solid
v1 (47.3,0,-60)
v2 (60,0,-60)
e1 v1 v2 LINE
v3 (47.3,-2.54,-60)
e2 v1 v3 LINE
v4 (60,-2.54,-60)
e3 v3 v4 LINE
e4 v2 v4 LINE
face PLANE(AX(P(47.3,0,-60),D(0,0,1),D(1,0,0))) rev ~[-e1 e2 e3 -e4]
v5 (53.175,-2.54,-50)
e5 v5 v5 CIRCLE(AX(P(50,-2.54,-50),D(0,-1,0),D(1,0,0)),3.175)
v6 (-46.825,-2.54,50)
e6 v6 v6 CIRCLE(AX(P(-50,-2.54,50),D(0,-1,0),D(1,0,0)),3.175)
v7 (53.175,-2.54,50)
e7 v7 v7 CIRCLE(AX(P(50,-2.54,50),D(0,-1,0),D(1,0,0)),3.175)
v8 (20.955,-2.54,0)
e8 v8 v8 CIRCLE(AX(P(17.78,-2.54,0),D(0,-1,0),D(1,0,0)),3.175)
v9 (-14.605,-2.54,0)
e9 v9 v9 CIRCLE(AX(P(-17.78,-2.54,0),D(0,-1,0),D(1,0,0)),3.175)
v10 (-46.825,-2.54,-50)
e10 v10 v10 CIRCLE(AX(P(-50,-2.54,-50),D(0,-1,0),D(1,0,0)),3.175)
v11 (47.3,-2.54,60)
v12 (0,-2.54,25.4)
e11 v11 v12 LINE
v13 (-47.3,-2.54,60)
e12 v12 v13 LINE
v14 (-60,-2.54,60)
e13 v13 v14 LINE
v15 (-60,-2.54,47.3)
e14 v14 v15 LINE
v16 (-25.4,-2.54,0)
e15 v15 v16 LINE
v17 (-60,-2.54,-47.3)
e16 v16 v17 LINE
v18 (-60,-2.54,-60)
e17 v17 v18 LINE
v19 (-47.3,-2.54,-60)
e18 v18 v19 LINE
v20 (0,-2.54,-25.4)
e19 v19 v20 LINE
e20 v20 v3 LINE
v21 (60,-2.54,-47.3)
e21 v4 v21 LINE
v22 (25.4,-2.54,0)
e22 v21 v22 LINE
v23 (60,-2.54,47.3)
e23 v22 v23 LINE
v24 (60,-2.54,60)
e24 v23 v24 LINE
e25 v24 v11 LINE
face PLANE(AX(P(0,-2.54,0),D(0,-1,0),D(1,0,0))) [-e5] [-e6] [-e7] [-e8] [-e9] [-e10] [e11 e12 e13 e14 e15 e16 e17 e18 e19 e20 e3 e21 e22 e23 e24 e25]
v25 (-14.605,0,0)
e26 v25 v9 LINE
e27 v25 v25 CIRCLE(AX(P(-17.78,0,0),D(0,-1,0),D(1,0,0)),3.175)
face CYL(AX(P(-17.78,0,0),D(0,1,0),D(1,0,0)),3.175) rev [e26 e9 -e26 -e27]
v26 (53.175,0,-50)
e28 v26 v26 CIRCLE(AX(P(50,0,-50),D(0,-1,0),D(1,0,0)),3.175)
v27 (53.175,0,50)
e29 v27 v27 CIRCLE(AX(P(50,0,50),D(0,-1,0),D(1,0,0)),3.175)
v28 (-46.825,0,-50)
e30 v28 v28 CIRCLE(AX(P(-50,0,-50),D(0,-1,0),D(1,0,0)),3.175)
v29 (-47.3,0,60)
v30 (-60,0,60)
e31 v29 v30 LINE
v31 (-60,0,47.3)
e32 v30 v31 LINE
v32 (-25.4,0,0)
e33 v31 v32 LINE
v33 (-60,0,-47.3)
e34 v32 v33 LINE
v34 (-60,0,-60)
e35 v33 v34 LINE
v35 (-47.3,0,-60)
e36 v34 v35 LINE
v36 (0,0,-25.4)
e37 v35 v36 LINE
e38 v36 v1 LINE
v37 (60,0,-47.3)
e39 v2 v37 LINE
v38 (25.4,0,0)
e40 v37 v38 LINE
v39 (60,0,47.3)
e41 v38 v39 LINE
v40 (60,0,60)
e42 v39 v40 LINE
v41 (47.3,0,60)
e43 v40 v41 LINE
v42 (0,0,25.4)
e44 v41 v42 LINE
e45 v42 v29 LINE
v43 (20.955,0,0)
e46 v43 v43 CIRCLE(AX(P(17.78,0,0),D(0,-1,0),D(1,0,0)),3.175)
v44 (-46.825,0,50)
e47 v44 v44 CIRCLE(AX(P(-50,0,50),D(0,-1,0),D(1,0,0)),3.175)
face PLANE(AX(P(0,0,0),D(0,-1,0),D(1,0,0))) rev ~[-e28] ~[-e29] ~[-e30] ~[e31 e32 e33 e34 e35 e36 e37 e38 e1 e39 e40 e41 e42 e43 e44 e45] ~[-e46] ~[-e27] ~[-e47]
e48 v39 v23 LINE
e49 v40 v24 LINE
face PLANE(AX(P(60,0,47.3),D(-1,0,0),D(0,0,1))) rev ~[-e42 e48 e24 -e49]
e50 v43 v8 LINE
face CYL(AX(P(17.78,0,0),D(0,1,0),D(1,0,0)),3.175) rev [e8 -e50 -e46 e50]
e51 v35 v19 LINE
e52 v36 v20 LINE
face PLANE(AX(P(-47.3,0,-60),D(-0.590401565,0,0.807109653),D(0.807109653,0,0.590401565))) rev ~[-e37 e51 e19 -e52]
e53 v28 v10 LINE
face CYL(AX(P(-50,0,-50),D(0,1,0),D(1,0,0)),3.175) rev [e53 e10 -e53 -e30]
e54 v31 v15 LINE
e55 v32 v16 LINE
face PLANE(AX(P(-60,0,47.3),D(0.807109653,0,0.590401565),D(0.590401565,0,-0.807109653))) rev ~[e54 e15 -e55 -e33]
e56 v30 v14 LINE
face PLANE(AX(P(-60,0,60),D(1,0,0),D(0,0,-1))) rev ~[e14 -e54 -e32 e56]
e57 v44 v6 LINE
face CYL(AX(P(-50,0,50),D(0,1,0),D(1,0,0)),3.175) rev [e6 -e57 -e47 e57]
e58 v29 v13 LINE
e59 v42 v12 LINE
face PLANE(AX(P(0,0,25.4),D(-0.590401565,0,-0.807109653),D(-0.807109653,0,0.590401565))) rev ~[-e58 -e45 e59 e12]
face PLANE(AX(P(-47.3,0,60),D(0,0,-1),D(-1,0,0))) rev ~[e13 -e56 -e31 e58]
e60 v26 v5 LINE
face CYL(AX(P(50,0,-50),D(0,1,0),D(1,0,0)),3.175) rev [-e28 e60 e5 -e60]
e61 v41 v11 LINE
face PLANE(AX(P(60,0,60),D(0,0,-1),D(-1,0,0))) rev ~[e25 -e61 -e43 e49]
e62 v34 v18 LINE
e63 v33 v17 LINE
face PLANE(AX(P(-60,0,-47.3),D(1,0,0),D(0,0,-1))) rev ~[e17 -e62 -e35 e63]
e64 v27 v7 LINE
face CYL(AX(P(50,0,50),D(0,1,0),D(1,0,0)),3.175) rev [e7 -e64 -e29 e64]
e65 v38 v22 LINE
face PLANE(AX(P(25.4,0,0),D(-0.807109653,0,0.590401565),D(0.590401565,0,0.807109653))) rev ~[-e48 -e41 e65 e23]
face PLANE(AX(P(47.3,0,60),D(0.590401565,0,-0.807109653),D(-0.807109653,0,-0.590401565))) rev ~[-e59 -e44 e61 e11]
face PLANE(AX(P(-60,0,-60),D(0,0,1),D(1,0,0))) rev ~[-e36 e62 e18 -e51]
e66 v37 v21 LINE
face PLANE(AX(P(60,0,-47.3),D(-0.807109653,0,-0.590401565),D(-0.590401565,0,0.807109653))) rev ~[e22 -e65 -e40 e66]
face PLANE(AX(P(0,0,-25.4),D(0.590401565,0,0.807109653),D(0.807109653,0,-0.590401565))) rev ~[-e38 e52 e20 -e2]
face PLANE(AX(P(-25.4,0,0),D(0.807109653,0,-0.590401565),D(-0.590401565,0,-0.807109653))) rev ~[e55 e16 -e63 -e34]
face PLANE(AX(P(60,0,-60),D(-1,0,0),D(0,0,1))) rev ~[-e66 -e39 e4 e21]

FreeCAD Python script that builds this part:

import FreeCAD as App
import Part
import Sketcher
Q = App.Units.Quantity

doc = App.newDocument("Part")
body = doc.addObject("PartDesign::Body", "Body")

# Sketch on XZ plane
sketch1 = body.newObject("Sketcher::SketchObject", "Sketch")
sketch1.AttachmentSupport = (doc.getObject("XZ_Plane"), [""])
sketch1.MapMode = "FlatFace"
sketch1.addGeometry([
    Part.LineSegment(App.Vector(60, 47.3, 0), App.Vector(60, 60, 0)),  # 0
    Part.LineSegment(App.Vector(60, 60, 0), App.Vector(47.3, 60, 0)),  # 1
    Part.LineSegment(App.Vector(47.3, 60, 0), App.Vector(0, 25.4, 0)),  # 2
    Part.LineSegment(App.Vector(0, 25.4, 0), App.Vector(-47.3, 60, 0)),  # 3
    Part.LineSegment(App.Vector(-47.3, 60, 0), App.Vector(-60, 60, 0)),  # 4
    Part.LineSegment(App.Vector(-60, 60, 0), App.Vector(-60, 47.3, 0)),  # 5
    Part.LineSegment(App.Vector(-60, 47.3, 0), App.Vector(-25.4, 0, 0)),  # 6
    Part.LineSegment(App.Vector(-25.4, 0, 0), App.Vector(-60, -47.3, 0)),  # 7
    Part.LineSegment(App.Vector(-60, -47.3, 0), App.Vector(-60, -60, 0)),  # 8
    Part.LineSegment(App.Vector(-60, -60, 0), App.Vector(-47.3, -60, 0)),  # 9
    Part.LineSegment(App.Vector(-47.3, -60, 0), App.Vector(0, -25.4, 0)),  # 10
    Part.LineSegment(App.Vector(0, -25.4, 0), App.Vector(47.3, -60, 0)),  # 11
    Part.LineSegment(App.Vector(47.3, -60, 0), App.Vector(60, -60, 0)),  # 12
    Part.LineSegment(App.Vector(60, -60, 0), App.Vector(60, -47.3, 0)),  # 13
    Part.LineSegment(App.Vector(60, -47.3, 0), App.Vector(25.4, 0, 0)),  # 14
    Part.LineSegment(App.Vector(25.4, 0, 0), App.Vector(60, 47.3, 0)),  # 15
    Part.Circle(App.Vector(-50, -50, 0), App.Vector(0, 0, 1), 3.2),  # 16
    Part.Circle(App.Vector(50, -50, 0), App.Vector(0, 0, 1), 3.2),  # 17
    Part.Circle(App.Vector(-17.8, 0, 0), App.Vector(0, 0, 1), 3.2),  # 18
    Part.Circle(App.Vector(-50, 50, 0), App.Vector(0, 0, 1), 3.2),  # 19
    Part.Circle(App.Vector(17.8, 0, 0), App.Vector(0, 0, 1), 3.2),  # 20
    Part.Circle(App.Vector(50, 50, 0), App.Vector(0, 0, 1), 3.2),  # 21
], False)
sketch1.addConstraint([
    Sketcher.Constraint("Coincident", 0, 2, 1, 1),
    Sketcher.Constraint("Coincident", 1, 2, 2, 1),
    Sketcher.Constraint("Coincident", 2, 2, 3, 1),
    Sketcher.Constraint("Coincident", 3, 2, 4, 1),
    Sketcher.Constraint("Coincident", 4, 2, 5, 1),
    Sketcher.Constraint("Coincident", 5, 2, 6, 1),
    Sketcher.Constraint("Coincident", 6, 2, 7, 1),
    Sketcher.Constraint("Coincident", 7, 2, 8, 1),
    Sketcher.Constraint("Coincident", 8, 2, 9, 1),
    Sketcher.Constraint("Coincident", 9, 2, 10, 1),
    Sketcher.Constraint("Coincident", 10, 2, 11, 1),
    Sketcher.Constraint("Coincident", 11, 2, 12, 1),
    Sketcher.Constraint("Coincident", 12, 2, 13, 1),
    Sketcher.Constraint("Coincident", 13, 2, 14, 1),
    Sketcher.Constraint("Coincident", 14, 2, 15, 1),
    Sketcher.Constraint("Coincident", 15, 2, 0, 1),
    Sketcher.Constraint("Vertical", 0),
    Sketcher.Constraint("Horizontal", 1),
    Sketcher.Constraint("Horizontal", 4),
    Sketcher.Constraint("Vertical", 5),
    Sketcher.Constraint("Vertical", 8),
    Sketcher.Constraint("Horizontal", 9),
    Sketcher.Constraint("Horizontal", 12),
    Sketcher.Constraint("Vertical", 13),
    Sketcher.Constraint("Equal", 16, 17),
    Sketcher.Constraint("Equal", 17, 18),
    Sketcher.Constraint("Equal", 18, 19),
    Sketcher.Constraint("Equal", 19, 20),
    Sketcher.Constraint("Equal", 20, 21),
    Sketcher.Constraint("Symmetric", 17, 3, 19, 3, -1, 1),
    Sketcher.Constraint("Symmetric", 18, 3, 20, 3, -1, 1),
    Sketcher.Constraint("Symmetric", 16, 3, 21, 3, -1, 1),
    Sketcher.Constraint("Symmetric", 0, 2, 8, 2, -1, 1),
    Sketcher.Constraint("Symmetric", 2, 2, 10, 2, -1, 1),
    Sketcher.Constraint("Symmetric", 3, 2, 11, 2, -1, 1),
    Sketcher.Constraint("Symmetric", 5, 2, 13, 2, -1, 1),
    Sketcher.Constraint("Symmetric", 6, 2, 14, 2, -1, 1),
    Sketcher.Constraint("Symmetric", 16, 3, 17, 3, -2),
    Sketcher.Constraint("Symmetric", 1, 2, 3, 2, -2),
    Sketcher.Constraint("Symmetric", 7, 2, 13, 2, -2),
    Sketcher.Constraint("PointOnObject", 18, 3, -1),
    Sketcher.Constraint("PointOnObject", 2, 2, -2),
    Sketcher.Constraint("PointOnObject", 6, 2, -1),
    Sketcher.Constraint("Perpendicular", 2, 6),
    Sketcher.Constraint("Perpendicular", 6, 10),
    Sketcher.Constraint("Perpendicular", 11, 15),
    Sketcher.Constraint("Equal", 12, 0),
    Sketcher.Constraint("Equal", 3, 6),
    Sketcher.Constraint("Diameter", 16, Q("0.25 in")),
    Sketcher.Constraint("DistanceX", 1, 2, 1, 1, Q("0.5 in")),
    Sketcher.Constraint("DistanceY", -1, 1, 2, 2, Q("1 in")),
    Sketcher.Constraint("DistanceX", 18, 3, -1, 1, Q("0.7 in")),
    Sketcher.Constraint("DistanceX", 16, 3, -1, 1, Q("50 mm")),
    Sketcher.Constraint("DistanceY", 16, 3, -1, 1, Q("50 mm")),
    Sketcher.Constraint("DistanceX", -1, 1, 0, 2, Q("60 mm")),
])
pad1 = body.newObject("PartDesign::Pad", "Pad")
pad1.Profile = sketch1
pad1.Length = Q("0.1 in")

doc.recompute()
